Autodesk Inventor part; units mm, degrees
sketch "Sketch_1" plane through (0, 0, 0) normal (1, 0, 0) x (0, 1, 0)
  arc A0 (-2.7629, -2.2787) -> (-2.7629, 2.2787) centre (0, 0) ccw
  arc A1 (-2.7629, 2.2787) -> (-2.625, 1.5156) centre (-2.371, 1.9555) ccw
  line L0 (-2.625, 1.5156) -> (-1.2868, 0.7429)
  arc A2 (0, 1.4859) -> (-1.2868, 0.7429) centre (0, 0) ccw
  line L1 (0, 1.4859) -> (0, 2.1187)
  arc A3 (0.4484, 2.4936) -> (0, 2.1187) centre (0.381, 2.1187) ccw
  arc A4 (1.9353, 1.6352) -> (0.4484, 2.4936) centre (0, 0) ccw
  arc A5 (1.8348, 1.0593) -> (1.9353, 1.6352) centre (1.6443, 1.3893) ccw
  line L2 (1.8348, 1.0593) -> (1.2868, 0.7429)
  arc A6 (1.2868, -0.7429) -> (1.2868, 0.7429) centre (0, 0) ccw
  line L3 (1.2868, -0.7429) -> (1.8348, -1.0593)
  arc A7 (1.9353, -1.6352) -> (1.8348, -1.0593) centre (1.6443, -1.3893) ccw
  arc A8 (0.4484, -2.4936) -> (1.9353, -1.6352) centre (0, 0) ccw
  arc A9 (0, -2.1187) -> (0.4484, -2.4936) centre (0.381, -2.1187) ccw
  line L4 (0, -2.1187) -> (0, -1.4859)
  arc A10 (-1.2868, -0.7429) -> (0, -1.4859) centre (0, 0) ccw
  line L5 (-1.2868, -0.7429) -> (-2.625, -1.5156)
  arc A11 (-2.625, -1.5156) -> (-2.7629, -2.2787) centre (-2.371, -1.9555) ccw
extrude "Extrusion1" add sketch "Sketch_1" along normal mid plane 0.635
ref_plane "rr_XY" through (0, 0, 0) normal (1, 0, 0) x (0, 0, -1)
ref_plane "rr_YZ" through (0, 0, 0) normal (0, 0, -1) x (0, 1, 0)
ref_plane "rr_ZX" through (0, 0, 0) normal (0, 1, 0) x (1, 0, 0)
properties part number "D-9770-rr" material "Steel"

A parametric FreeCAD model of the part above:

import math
import FreeCAD as App
import Part
import Sketcher

V = App.Vector
Q = App.Units.Quantity

doc = App.newDocument("Part")
body = doc.addObject("PartDesign::Body", "Body")

# Sketch on YZ plane
sketch1 = body.newObject("Sketcher::SketchObject", "Sketch")
sketch1.AttachmentSupport = (doc.getObject("YZ_Plane"), [""])
sketch1.MapMode = "FlatFace"
sketch1.addGeometry([
    Part.ArcOfCircle(Part.Circle(V(-2.371, -1.9555, 0), V(0, 0, 1), 0.507965), math.radians(120.002307), math.radians(219.512408)),  # 0
    Part.ArcOfCircle(Part.Circle(V(0, 0, 0), V(0, 0, 1), 3.581353), math.radians(-140.485915), math.radians(140.485915)),  # 1
    Part.ArcOfCircle(Part.Circle(V(-2.371, 1.9555, 0), V(0, 0, 1), 0.50798), math.radians(140.487592), math.radians(239.997693)),  # 2
    Part.LineSegment(V(-2.625, 1.5156, 0), V(-1.2868, 0.7429, 0)),  # 3
    Part.ArcOfCircle(Part.Circle(V(0, 0, 0), V(0, 0, 1), 1.485851), math.radians(90), math.radians(150.001146)),  # 4
    Part.LineSegment(V(0, 1.4859, 0), V(0, 2.1187, 0)),  # 5
    Part.ArcOfCircle(Part.Circle(V(0.381, 2.1187, 0), V(0, 0, 1), 0.38091), math.radians(79.808165), math.radians(180)),  # 6
    Part.ArcOfCircle(Part.Circle(V(0, 0, 0), V(0, 0, 1), 2.533595), math.radians(40.19559), math.radians(79.805997)),  # 7
    Part.ArcOfCircle(Part.Circle(V(1.6443, 1.3893, 0), V(0, 0, 1), 0.381038), math.radians(-60.003332), math.radians(40.198384)),  # 8
    Part.LineSegment(V(1.8348, 1.0593, 0), V(1.2868, 0.7429, 0)),  # 9
    Part.ArcOfCircle(Part.Circle(V(0, 0, 0), V(0, 0, 1), 1.485851), math.radians(-29.998854), math.radians(29.998854)),  # 10
    Part.LineSegment(V(1.2868, -0.7429, 0), V(1.8348, -1.0593, 0)),  # 11
    Part.ArcOfCircle(Part.Circle(V(1.6443, -1.3893, 0), V(0, 0, 1), 0.380983), math.radians(-40.198384), math.radians(60.003332)),  # 12
    Part.ArcOfCircle(Part.Circle(V(0, 0, 0), V(0, 0, 1), 2.533627), math.radians(-79.805997), math.radians(-40.19559)),  # 13
    Part.ArcOfCircle(Part.Circle(V(0.381, -2.1187, 0), V(0, 0, 1), 0.381), math.radians(180), math.radians(280.191835)),  # 14
    Part.LineSegment(V(0, -2.1187, 0), V(0, -1.4859, 0)),  # 15
    Part.ArcOfCircle(Part.Circle(V(0, 0, 0), V(0, 0, 1), 1.4859), math.radians(-150.001146), math.radians(-90)),  # 16
    Part.LineSegment(V(-1.2868, -0.7429, 0), V(-2.625, -1.5156, 0)),  # 17
], False)
sketch1.addConstraint([
    Sketcher.Constraint("Tangent", 0, 2, 1, 1),
    Sketcher.Constraint("Tangent", 1, 2, 2, 1),
    Sketcher.Constraint("Tangent", 2, 2, 3, 1),
    Sketcher.Constraint("Coincident", 3, 2, 4, 2),
    Sketcher.Constraint("Coincident", 4, 1, 5, 1),
    Sketcher.Constraint("Tangent", 5, 2, 6, 2),
    Sketcher.Constraint("Tangent", 6, 1, 7, 2),
    Sketcher.Constraint("Tangent", 7, 1, 8, 2),
    Sketcher.Constraint("Tangent", 8, 1, 9, 1),
    Sketcher.Constraint("Coincident", 9, 2, 10, 2),
    Sketcher.Constraint("Coincident", 10, 1, 11, 1),
    Sketcher.Constraint("Tangent", 11, 2, 12, 2),
    Sketcher.Constraint("Tangent", 12, 1, 13, 2),
    Sketcher.Constraint("Tangent", 13, 1, 14, 2),
    Sketcher.Constraint("Tangent", 14, 1, 15, 1),
    Sketcher.Constraint("Coincident", 15, 2, 16, 2),
    Sketcher.Constraint("Coincident", 16, 1, 17, 1),
    Sketcher.Constraint("Tangent", 17, 2, 0, 1),
    Sketcher.Constraint("Vertical", 5),
    Sketcher.Constraint("Vertical", 15),
    Sketcher.Constraint("Coincident", 1, 3, -1, 1),
    Sketcher.Constraint("Coincident", 4, 3, -1, 1),
    Sketcher.Constraint("Coincident", 7, 3, -1, 1),
    Sketcher.Constraint("Coincident", 10, 3, -1, 1),
    Sketcher.Constraint("Coincident", 13, 3, -1, 1),
    Sketcher.Constraint("Coincident", 16, 3, -1, 1),
    Sketcher.Constraint("Equal", 0, 2),
    Sketcher.Constraint("Equal", 6, 8),
    Sketcher.Constraint("Equal", 4, 10),
    Sketcher.Constraint("Equal", 8, 12),
    Sketcher.Constraint("Equal", 7, 13),
    Sketcher.Constraint("Equal", 12, 14),
    Sketcher.Constraint("Equal", 10, 16),
    Sketcher.Constraint("Symmetric", 5, 2, 14, 1, -1, 1),
    Sketcher.Constraint("Symmetric", 8, 1, 11, 2, -1),
    Sketcher.Constraint("Symmetric", 2, 2, 17, 2, -1),
    Sketcher.Constraint("Parallel", 3, 11),
    Sketcher.Constraint("Horizontal", 3, 2, 9, 2),
    Sketcher.Constraint("Radius", 0, Q("0.02 in")),
    Sketcher.Constraint("Angle", 9, Q("-149.999 deg")),
    Sketcher.Constraint("Radius", 1, Q("0.141 in")),
    Sketcher.Constraint("Radius", 6, Q("0.015 in")),
    Sketcher.Constraint("Radius", 4, Q("0.0585 in")),
    Sketcher.Constraint("Radius", 7, 2.5336),
    Sketcher.Constraint("DistanceY", 0, 3, -1, 1, Q("0.077 in")),
])
pad1 = body.newObject("PartDesign::Pad", "Pad")
pad1.Profile = sketch1
pad1.Length = Q("0.025 in")
pad1.Midplane = True

doc.recompute()
